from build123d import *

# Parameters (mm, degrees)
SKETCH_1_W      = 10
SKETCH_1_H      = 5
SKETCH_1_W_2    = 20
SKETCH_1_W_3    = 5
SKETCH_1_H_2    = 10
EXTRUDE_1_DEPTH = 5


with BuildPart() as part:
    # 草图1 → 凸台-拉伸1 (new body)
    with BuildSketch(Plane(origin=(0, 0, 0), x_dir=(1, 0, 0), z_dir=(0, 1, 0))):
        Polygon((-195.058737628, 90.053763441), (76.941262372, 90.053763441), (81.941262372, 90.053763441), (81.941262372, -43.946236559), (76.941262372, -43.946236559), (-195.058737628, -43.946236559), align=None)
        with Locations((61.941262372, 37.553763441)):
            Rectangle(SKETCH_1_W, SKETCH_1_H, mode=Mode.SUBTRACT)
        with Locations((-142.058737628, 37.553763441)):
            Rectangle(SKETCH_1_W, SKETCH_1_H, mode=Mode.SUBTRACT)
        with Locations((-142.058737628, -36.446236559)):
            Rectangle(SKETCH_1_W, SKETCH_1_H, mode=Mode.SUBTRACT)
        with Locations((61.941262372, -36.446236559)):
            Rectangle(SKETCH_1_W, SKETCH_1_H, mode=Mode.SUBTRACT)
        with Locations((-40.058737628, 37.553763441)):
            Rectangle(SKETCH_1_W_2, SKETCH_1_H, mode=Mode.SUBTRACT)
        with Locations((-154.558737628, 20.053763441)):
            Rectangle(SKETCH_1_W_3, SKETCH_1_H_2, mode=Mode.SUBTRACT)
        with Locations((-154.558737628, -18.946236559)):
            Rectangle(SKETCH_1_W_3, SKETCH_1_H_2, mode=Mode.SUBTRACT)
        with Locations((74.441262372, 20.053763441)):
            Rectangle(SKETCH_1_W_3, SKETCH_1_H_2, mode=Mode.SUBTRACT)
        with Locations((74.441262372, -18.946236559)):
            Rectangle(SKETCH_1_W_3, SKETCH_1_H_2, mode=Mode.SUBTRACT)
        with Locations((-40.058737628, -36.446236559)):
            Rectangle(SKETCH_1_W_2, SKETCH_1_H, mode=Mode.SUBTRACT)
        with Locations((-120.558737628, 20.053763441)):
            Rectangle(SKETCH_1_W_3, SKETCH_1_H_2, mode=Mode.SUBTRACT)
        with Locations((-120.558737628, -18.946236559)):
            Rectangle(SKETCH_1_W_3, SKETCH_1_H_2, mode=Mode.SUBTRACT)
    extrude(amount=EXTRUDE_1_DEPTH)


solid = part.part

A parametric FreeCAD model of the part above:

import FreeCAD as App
import Part
import Sketcher


def add_polygon(sketch, points):
    """Adds a closed chain of lines whose ends are joined by coincident constraints."""
    first, n = sketch.GeometryCount, len(points)
    for a, b in zip(points, points[1:] + points[:1]):
        sketch.addGeometry(Part.LineSegment(App.Vector(*a, 0), App.Vector(*b, 0)), False)
    for i in range(n):
        sketch.addConstraint(Sketcher.Constraint("Coincident", first + i, 2, first + (i + 1) % n, 1))

doc = App.newDocument("Part")
params = doc.addObject("Spreadsheet::Sheet", "Params")
for row, (alias, value) in enumerate([
    ("sketch1_width", "277 mm"),
    ("sketch1_width2", "10 mm"),
    ("sketch1_width3", "5 mm"),
    ("sketch1_width4", "20 mm"),
    ("sketch1_height", "134 mm"),
    ("pad1_length", "5 mm"),
], start=1):
    params.set(f"A{row}", alias)
    params.set(f"B{row}", "=" + value)
    params.setAlias(f"B{row}", alias)

body = doc.addObject("PartDesign::Body", "Body")

# Sketch on XZ plane
sketch1 = body.newObject("Sketcher::SketchObject", "Sketch")
sketch1.AttachmentSupport = (doc.getObject("XZ_Plane"), [""])
sketch1.MapMode = "FlatFace"
add_polygon(sketch1, [(82, -90), (-195, -90), (-195, 44), (82, 44)])  # lines 0-3
add_polygon(sketch1, [(57, 39), (57, 34), (67, 34), (67, 39)])  # lines 4-7
add_polygon(sketch1, [(72, 24), (72, 14), (77, 14), (77, 24)])  # lines 8-11
add_polygon(sketch1, [(-50, 39), (-50, 34), (-30, 34), (-30, 39)])  # lines 12-15
add_polygon(sketch1, [(-147, 39), (-147, 34), (-137, 34), (-137, 39)])  # lines 16-19
add_polygon(sketch1, [(-123, 24), (-123, 14), (-118, 14), (-118, 24)])  # lines 20-23
add_polygon(sketch1, [(-157, 24), (-157, 14), (-152, 14), (-152, 24)])  # lines 24-27
add_polygon(sketch1, [(72, -15), (72, -25), (77, -25), (77, -15)])  # lines 28-31
add_polygon(sketch1, [(57, -35), (57, -40), (67, -40), (67, -35)])  # lines 32-35
add_polygon(sketch1, [(-123, -15), (-123, -25), (-118, -25), (-118, -15)])  # lines 36-39
add_polygon(sketch1, [(-157, -15), (-157, -25), (-152, -25), (-152, -15)])  # lines 40-43
add_polygon(sketch1, [(-50, -35), (-50, -40), (-30, -40), (-30, -35)])  # lines 44-47
add_polygon(sketch1, [(-147, -35), (-147, -40), (-137, -40), (-137, -35)])  # lines 48-51
sketch1.addConstraint([
    Sketcher.Constraint("Horizontal", 0),
    Sketcher.Constraint("Vertical", 1),
    Sketcher.Constraint("Horizontal", 2),
    Sketcher.Constraint("Vertical", 3),
    Sketcher.Constraint("Vertical", 4),
    Sketcher.Constraint("Horizontal", 5),
    Sketcher.Constraint("Vertical", 6),
    Sketcher.Constraint("Horizontal", 7),
    Sketcher.Constraint("Vertical", 8),
    Sketcher.Constraint("Horizontal", 9),
    Sketcher.Constraint("Vertical", 10),
    Sketcher.Constraint("Horizontal", 11),
    Sketcher.Constraint("Vertical", 12),
    Sketcher.Constraint("Horizontal", 13),
    Sketcher.Constraint("Vertical", 14),
    Sketcher.Constraint("Horizontal", 15),
    Sketcher.Constraint("Vertical", 16),
    Sketcher.Constraint("Horizontal", 17),
    Sketcher.Constraint("Vertical", 18),
    Sketcher.Constraint("Horizontal", 19),
    Sketcher.Constraint("Vertical", 20),
    Sketcher.Constraint("Horizontal", 21),
    Sketcher.Constraint("Vertical", 22),
    Sketcher.Constraint("Horizontal", 23),
    Sketcher.Constraint("Vertical", 24),
    Sketcher.Constraint("Horizontal", 25),
    Sketcher.Constraint("Vertical", 26),
    Sketcher.Constraint("Horizontal", 27),
    Sketcher.Constraint("Vertical", 28),
    Sketcher.Constraint("Horizontal", 29),
    Sketcher.Constraint("Vertical", 30),
    Sketcher.Constraint("Horizontal", 31),
    Sketcher.Constraint("Vertical", 32),
    Sketcher.Constraint("Horizontal", 33),
    Sketcher.Constraint("Vertical", 34),
    Sketcher.Constraint("Horizontal", 35),
    Sketcher.Constraint("Vertical", 36),
    Sketcher.Constraint("Horizontal", 37),
    Sketcher.Constraint("Vertical", 38),
    Sketcher.Constraint("Horizontal", 39),
    Sketcher.Constraint("Vertical", 40),
    Sketcher.Constraint("Horizontal", 41),
    Sketcher.Constraint("Vertical", 42),
    Sketcher.Constraint("Horizontal", 43),
    Sketcher.Constraint("Vertical", 44),
    Sketcher.Constraint("Horizontal", 45),
    Sketcher.Constraint("Vertical", 46),
    Sketcher.Constraint("Horizontal", 47),
    Sketcher.Constraint("Vertical", 48),
    Sketcher.Constraint("Horizontal", 49),
    Sketcher.Constraint("Vertical", 50),
    Sketcher.Constraint("Horizontal", 51),
    Sketcher.Constraint("Horizontal", 5, 2, 12, 2),
    Sketcher.Constraint("Horizontal", 7, 2, 14, 2),
    Sketcher.Constraint("Horizontal", 13, 2, 16, 2),
    Sketcher.Constraint("Horizontal", 15, 2, 18, 2),
    Sketcher.Constraint("Horizontal", 9, 2, 20, 2),
    Sketcher.Constraint("Horizontal", 11, 2, 22, 2),
    Sketcher.Constraint("Horizontal", 21, 2, 24, 2),
    Sketcher.Constraint("Horizontal", 23, 2, 26, 2),
    Sketcher.Constraint("Horizontal", 29, 2, 36, 2),
    Sketcher.Constraint("Horizontal", 31, 2, 38, 2),
    Sketcher.Constraint("Horizontal", 37, 2, 40, 2),
    Sketcher.Constraint("Horizontal", 39, 2, 42, 2),
    Sketcher.Constraint("Horizontal", 33, 2, 44, 2),
    Sketcher.Constraint("Horizontal", 35, 2, 46, 2),
    Sketcher.Constraint("Horizontal", 45, 2, 48, 2),
    Sketcher.Constraint("Horizontal", 47, 2, 50, 2),
    Sketcher.Constraint("Vertical", 11, 2, 28, 2),
    Sketcher.Constraint("Vertical", 10, 2, 29, 2),
    Sketcher.Constraint("Vertical", 7, 2, 32, 2),
    Sketcher.Constraint("Vertical", 6, 2, 33, 2),
    Sketcher.Constraint("Vertical", 23, 2, 36, 2),
    Sketcher.Constraint("Vertical", 22, 2, 37, 2),
    Sketcher.Constraint("Vertical", 27, 2, 40, 2),
    Sketcher.Constraint("Vertical", 26, 2, 41, 2),
    Sketcher.Constraint("Vertical", 15, 2, 44, 2),
    Sketcher.Constraint("Vertical", 14, 2, 45, 2),
    Sketcher.Constraint("Vertical", 19, 2, 48, 2),
    Sketcher.Constraint("Vertical", 18, 2, 49, 2),
    Sketcher.Constraint("Equal", 7, 17),
    Sketcher.Constraint("Equal", 11, 21),
    Sketcher.Constraint("Equal", 23, 25),
    Sketcher.Constraint("Equal", 43, 4),
    Sketcher.Constraint("Equal", 51, 8),
    Sketcher.Constraint("Equal", 26, 28),
    Sketcher.Constraint("Equal", 18, 32),
    Sketcher.Constraint("DistanceX", 0, 2, 0, 1, 277.0),
    Sketcher.Constraint("DistanceX", 5, 1, 5, 2, 10.0),
    Sketcher.Constraint("DistanceX", 9, 1, 9, 2, 5.0),
    Sketcher.Constraint("DistanceX", 13, 1, 13, 2, 20.0),
    Sketcher.Constraint("DistanceY", 1, 1, 1, 2, 134.0),
    Sketcher.Constraint("DistanceX", 4, 2, 2, 2, 25.0),
    Sketcher.Constraint("DistanceY", 4, 2, 2, 2, 10.0),
    Sketcher.Constraint("DistanceX", 5, 2, 8, 2, 5.0),
    Sketcher.Constraint("DistanceY", 8, 2, 5, 2, 20.0),
    Sketcher.Constraint("DistanceX", 12, 2, 4, 2, 107.0),
    Sketcher.Constraint("DistanceX", 1, 2, 16, 2, 48.0),
    Sketcher.Constraint("DistanceX", 17, 2, 20, 2, 14.0),
    Sketcher.Constraint("DistanceX", 24, 2, 16, 2, 10.0),
    Sketcher.Constraint("DistanceY", 28, 2, 8, 2, 39.0),
    Sketcher.Constraint("DistanceY", 32, 2, 28, 2, 15.0),
    Sketcher.Constraint("DistanceX", 0, 2, -1, 1, 195.058738),
    Sketcher.Constraint("DistanceY", 0, 2, -1, 1, 90.053763),
])
sketch1.setExpression("Constraints[139]", "Params.sketch1_width")
sketch1.setExpression("Constraints[140]", "Params.sketch1_width2")
sketch1.setExpression("Constraints[141]", "Params.sketch1_width3")
sketch1.setExpression("Constraints[142]", "Params.sketch1_width4")
sketch1.setExpression("Constraints[143]", "Params.sketch1_height")
pad1 = body.newObject("PartDesign::Pad", "Pad")
pad1.Profile = sketch1
pad1.setExpression("Length", "Params.pad1_length")
pad1.Reversed = True

doc.recompute()
